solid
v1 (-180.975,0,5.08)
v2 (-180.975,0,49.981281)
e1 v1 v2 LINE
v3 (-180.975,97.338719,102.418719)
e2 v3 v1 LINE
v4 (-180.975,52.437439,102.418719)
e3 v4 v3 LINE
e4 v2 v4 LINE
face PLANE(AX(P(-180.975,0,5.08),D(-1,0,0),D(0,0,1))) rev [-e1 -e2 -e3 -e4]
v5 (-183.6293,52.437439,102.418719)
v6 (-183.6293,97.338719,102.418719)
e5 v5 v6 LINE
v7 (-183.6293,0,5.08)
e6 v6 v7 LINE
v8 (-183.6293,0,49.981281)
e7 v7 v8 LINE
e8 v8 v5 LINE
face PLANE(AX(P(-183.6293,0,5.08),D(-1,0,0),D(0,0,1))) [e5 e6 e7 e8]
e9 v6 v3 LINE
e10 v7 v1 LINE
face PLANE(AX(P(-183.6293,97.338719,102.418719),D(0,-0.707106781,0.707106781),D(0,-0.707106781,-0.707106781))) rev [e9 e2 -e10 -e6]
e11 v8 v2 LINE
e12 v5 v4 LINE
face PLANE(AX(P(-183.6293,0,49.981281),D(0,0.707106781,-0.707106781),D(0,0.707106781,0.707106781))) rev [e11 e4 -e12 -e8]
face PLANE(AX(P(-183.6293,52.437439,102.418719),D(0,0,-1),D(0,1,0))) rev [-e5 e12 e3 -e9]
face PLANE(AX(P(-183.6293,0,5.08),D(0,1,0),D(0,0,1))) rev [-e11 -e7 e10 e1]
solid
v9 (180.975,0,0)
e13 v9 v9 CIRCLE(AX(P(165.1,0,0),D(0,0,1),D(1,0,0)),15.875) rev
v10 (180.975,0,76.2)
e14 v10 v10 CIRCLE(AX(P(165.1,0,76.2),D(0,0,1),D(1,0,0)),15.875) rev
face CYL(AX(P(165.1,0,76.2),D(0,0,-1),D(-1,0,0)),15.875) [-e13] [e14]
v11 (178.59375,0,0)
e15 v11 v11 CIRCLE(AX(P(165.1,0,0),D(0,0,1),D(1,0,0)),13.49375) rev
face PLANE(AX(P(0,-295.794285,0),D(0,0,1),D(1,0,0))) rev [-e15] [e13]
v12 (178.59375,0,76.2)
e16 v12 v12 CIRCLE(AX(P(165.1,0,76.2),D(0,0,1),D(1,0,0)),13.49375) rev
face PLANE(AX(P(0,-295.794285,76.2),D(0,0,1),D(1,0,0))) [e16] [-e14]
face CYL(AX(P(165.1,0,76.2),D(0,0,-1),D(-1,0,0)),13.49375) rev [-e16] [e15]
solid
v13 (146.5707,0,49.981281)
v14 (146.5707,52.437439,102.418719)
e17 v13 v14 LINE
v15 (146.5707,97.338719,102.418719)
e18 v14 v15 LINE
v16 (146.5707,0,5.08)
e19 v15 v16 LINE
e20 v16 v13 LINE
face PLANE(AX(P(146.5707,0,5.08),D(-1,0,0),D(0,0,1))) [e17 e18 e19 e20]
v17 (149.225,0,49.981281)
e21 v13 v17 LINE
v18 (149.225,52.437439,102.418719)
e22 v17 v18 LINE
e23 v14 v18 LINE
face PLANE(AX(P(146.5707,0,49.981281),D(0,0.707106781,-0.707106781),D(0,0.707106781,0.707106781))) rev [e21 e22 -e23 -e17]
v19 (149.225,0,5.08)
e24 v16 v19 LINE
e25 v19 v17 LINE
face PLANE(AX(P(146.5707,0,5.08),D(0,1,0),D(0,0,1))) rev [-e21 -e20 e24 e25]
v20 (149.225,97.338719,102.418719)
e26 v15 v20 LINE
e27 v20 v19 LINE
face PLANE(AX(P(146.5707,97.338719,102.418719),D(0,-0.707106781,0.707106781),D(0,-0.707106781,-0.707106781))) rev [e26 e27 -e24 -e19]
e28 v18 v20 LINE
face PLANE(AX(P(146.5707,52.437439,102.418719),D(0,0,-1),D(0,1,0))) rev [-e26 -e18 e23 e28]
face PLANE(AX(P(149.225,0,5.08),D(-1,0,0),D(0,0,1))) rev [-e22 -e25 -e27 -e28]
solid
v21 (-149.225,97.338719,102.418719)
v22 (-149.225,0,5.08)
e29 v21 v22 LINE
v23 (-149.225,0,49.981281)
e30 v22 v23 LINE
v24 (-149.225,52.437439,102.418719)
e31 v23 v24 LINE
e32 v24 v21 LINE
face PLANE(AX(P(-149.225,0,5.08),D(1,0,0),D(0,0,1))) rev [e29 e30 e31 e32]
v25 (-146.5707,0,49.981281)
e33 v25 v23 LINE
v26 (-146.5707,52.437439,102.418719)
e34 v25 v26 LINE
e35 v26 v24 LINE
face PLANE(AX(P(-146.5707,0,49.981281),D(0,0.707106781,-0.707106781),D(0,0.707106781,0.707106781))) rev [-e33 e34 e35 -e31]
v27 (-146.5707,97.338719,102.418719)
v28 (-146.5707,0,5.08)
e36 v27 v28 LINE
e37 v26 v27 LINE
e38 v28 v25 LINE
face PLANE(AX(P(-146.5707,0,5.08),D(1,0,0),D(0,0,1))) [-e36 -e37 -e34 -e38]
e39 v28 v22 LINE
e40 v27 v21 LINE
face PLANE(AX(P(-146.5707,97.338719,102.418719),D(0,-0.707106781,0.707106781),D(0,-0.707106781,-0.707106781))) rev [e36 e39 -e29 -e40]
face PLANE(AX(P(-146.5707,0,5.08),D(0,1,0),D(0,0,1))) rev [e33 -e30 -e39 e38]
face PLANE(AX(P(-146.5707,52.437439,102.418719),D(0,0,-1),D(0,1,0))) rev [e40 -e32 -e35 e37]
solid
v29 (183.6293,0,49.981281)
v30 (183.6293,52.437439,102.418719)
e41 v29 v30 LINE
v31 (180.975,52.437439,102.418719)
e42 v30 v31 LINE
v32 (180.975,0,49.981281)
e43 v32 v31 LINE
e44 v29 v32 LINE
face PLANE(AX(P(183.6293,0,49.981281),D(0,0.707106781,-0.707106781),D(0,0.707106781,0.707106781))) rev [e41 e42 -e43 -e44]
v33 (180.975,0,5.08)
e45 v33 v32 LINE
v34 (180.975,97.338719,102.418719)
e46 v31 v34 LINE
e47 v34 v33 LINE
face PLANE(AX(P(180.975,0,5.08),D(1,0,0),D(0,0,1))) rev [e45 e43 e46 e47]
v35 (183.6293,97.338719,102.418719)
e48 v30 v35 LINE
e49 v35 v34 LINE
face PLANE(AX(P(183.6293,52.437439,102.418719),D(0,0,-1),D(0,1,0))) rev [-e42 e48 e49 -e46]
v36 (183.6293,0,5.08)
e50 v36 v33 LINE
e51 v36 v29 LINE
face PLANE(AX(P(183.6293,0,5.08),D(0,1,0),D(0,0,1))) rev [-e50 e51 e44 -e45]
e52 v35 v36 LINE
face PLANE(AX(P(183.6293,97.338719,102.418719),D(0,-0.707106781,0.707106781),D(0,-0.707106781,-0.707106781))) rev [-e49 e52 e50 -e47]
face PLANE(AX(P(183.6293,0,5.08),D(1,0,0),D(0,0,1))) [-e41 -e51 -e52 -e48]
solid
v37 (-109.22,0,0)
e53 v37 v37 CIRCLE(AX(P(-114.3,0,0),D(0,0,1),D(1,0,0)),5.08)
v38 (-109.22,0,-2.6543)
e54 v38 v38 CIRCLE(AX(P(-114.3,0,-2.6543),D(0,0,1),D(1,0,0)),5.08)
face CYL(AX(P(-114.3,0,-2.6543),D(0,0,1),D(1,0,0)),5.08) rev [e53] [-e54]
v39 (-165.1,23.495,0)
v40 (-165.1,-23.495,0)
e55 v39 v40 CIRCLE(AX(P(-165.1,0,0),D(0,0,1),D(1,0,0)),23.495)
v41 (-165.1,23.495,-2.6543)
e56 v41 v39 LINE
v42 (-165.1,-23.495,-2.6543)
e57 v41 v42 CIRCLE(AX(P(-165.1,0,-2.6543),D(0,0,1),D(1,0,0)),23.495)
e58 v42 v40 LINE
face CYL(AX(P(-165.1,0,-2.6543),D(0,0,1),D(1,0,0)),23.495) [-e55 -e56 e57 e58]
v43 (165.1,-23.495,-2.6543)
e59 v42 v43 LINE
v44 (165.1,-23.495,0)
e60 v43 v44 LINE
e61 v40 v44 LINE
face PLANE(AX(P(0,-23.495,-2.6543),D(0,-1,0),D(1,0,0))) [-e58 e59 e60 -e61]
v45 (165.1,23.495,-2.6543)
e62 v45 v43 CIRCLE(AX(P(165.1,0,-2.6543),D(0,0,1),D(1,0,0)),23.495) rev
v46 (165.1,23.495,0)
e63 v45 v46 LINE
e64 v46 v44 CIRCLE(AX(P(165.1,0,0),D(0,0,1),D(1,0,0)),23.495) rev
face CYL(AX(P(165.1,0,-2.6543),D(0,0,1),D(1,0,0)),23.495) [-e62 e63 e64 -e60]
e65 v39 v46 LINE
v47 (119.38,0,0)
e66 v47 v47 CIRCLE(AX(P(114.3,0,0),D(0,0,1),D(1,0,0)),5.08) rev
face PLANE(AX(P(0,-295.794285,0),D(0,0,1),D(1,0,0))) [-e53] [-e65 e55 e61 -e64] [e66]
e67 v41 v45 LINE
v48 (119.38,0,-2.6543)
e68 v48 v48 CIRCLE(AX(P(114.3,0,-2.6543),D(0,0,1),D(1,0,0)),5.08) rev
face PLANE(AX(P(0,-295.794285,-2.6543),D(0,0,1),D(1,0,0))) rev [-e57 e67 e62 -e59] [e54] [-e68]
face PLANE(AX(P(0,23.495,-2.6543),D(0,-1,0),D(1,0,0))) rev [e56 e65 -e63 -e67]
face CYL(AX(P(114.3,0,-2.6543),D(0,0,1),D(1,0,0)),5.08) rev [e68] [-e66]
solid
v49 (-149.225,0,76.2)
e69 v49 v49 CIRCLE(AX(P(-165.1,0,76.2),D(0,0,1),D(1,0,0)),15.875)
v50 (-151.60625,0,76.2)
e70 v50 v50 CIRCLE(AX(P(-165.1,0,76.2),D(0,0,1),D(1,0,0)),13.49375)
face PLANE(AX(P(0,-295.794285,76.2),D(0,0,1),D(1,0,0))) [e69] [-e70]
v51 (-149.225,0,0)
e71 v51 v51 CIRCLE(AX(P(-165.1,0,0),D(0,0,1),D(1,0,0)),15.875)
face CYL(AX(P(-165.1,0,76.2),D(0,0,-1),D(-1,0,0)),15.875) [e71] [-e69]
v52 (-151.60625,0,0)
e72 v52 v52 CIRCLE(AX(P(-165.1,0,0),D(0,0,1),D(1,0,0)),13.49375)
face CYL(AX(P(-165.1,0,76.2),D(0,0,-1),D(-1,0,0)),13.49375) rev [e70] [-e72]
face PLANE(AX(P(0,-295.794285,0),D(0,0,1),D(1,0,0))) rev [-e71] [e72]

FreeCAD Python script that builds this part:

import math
import FreeCAD as App
import Part
import Sketcher
Q = App.Units.Quantity

doc = App.newDocument("Part")
params = doc.addObject("Spreadsheet::Sheet", "Params")
for row, (alias, value) in enumerate([
    ("sketch1_diameter", "1.25 in"),
    ("sketch1_diameter2", "1.0625 in"),
    ("pad1_length", "3 in"),
    ("sketch2_diameter", "1.25 in"),
    ("sketch2_diameter2", "1.0625 in"),
    ("pad2_length", "3 in"),
    ("sketch3_width", "13 in"),
    ("sketch3_radius", "0.925 in"),
    ("pad3_length", "0.1045 in"),
    ("sketch4_diameter", "0.4 in"),
    ("pocket1_length", "0.1045 in"),
    ("pad4_length", "0.1045 in"),
], start=1):
    params.set(f"A{row}", alias)
    params.set(f"B{row}", "=" + value)
    params.setAlias(f"B{row}", alias)

body = doc.addObject("PartDesign::Body", "Body")

sketch1 = body.newObject("Sketcher::SketchObject", "Sketch")
sketch1.AttachmentSupport = (doc.getObject("XY_Plane"), [""])
sketch1.MapMode = "FlatFace"
sketch1.addGeometry([
    Part.Circle(App.Vector(-165, 0, 0), App.Vector(0, 0, 1), 16),
    Part.Circle(App.Vector(-165, 0, 0), App.Vector(0, 0, 1), 13),
], False)
sketch1.addConstraint([
    Sketcher.Constraint("Coincident", 1, 3, 0, 3),
    Sketcher.Constraint("PointOnObject", 0, 3, -1),
    Sketcher.Constraint("Diameter", 0, Q("1.25 in")),
    Sketcher.Constraint("Diameter", 1, Q("1.0625 in")),
    Sketcher.Constraint("DistanceX", 0, 3, -1, 1, Q("6.5 in")),
])
sketch1.setExpression("Constraints[2]", "Params.sketch1_diameter")
sketch1.setExpression("Constraints[3]", "Params.sketch1_diameter2")
pad1 = body.newObject("PartDesign::Pad", "Pad")
pad1.Profile = sketch1
pad1.setExpression("Length", "Params.pad1_length")
body2 = doc.addObject("PartDesign::Body", "Body001")

sketch2 = body2.newObject("Sketcher::SketchObject", "Sketch001")
sketch2.AttachmentSupport = (doc.getObject("XY_Plane001"), [""])
sketch2.MapMode = "FlatFace"
sketch2.addGeometry([
    Part.Circle(App.Vector(165, 0, 0), App.Vector(0, 0, 1), 16),
    Part.Circle(App.Vector(165, 0, 0), App.Vector(0, 0, 1), 13),
], False)
sketch2.addConstraint([
    Sketcher.Constraint("Coincident", 1, 3, 0, 3),
    Sketcher.Constraint("PointOnObject", 0, 3, -1),
    Sketcher.Constraint("Diameter", 0, Q("1.25 in")),
    Sketcher.Constraint("Diameter", 1, Q("1.0625 in")),
    Sketcher.Constraint("DistanceX", -1, 1, 0, 3, Q("6.5 in")),
])
sketch2.setExpression("Constraints[2]", "Params.sketch2_diameter")
sketch2.setExpression("Constraints[3]", "Params.sketch2_diameter2")
pad2 = body2.newObject("PartDesign::Pad", "Pad001")
pad2.Profile = sketch2
pad2.setExpression("Length", "Params.pad2_length")
body3 = doc.addObject("PartDesign::Body", "Body002")

sketch3 = body3.newObject("Sketcher::SketchObject", "Sketch002")
sketch3.AttachmentSupport = (doc.getObject("XY_Plane002"), [""])
sketch3.MapMode = "FlatFace"
sketch3.addGeometry([
    Part.ArcOfCircle(Part.Circle(App.Vector(165, 0, 0), App.Vector(0, 0, 1), 23), math.radians(-90), math.radians(90)),
    Part.LineSegment(App.Vector(165, 23, 0), App.Vector(-165, 23, 0)),
    Part.ArcOfCircle(Part.Circle(App.Vector(-165, 0, 0), App.Vector(0, 0, 1), 23), math.radians(90), math.radians(270)),
    Part.LineSegment(App.Vector(-165, -23, 0), App.Vector(165, -23, 0)),
], False)
sketch3.addConstraint([
    Sketcher.Constraint("Tangent", 0, 2, 1, 1),
    Sketcher.Constraint("Tangent", 1, 2, 2, 1),
    Sketcher.Constraint("Tangent", 2, 2, 3, 1),
    Sketcher.Constraint("Tangent", 3, 2, 0, 1),
    Sketcher.Constraint("Horizontal", 1),
    Sketcher.Constraint("Horizontal", 3),
    Sketcher.Constraint("Symmetric", 0, 3, 2, 3, -1, 1),
    Sketcher.Constraint("DistanceX", 1, 2, 1, 1, Q("13 in")),
    Sketcher.Constraint("Radius", 0, Q("0.925 in")),
])
sketch3.setExpression("Constraints[7]", "Params.sketch3_width")
sketch3.setExpression("Constraints[8]", "Params.sketch3_radius")
pad3 = body3.newObject("PartDesign::Pad", "Pad002")
pad3.Profile = sketch3
pad3.setExpression("Length", "Params.pad3_length")
pad3.Reversed = True

sketch4 = body3.newObject("Sketcher::SketchObject", "Sketch003")
sketch4.AttachmentSupport = (doc.getObject("XY_Plane002"), [""])
sketch4.MapMode = "FlatFace"
sketch4.addGeometry([
    Part.Circle(App.Vector(114, 0, 0), App.Vector(0, 0, 1), 5),
    Part.Circle(App.Vector(-114, 0, 0), App.Vector(0, 0, 1), 5),
], False)
sketch4.addConstraint([
    Sketcher.Constraint("Equal", 0, 1),
    Sketcher.Constraint("Symmetric", 0, 3, 1, 3, -1, 1),
    Sketcher.Constraint("PointOnObject", 0, 3, -1),
    Sketcher.Constraint("Diameter", 0, Q("0.4 in")),
    Sketcher.Constraint("DistanceX", 1, 3, 0, 3, Q("9 in")),
])
sketch4.setExpression("Constraints[3]", "Params.sketch4_diameter")
pocket1 = body3.newObject("PartDesign::Pocket", "Pocket")
pocket1.Profile = sketch4
pocket1.setExpression("Length", "Params.pocket1_length")
body4 = doc.addObject("PartDesign::Body", "Body003")

sketch5 = body4.newObject("Sketcher::SketchObject", "Sketch004")
sketch5.AttachmentSupport = (doc.getObject("YZ_Plane003"), [""])
sketch5.MapMode = "FlatFace"
sketch5.AttachmentOffset = App.Placement(App.Vector(0, 0, -7.125 * 25.4), App.Rotation())
sketch5.addGeometry([
    Part.LineSegment(App.Vector(0, 5, 0), App.Vector(0, 50, 0)),
    Part.LineSegment(App.Vector(0, 50, 0), App.Vector(52, 102, 0)),
    Part.LineSegment(App.Vector(52, 102, 0), App.Vector(97, 102, 0)),
    Part.LineSegment(App.Vector(97, 102, 0), App.Vector(0, 5, 0)),
], False)
sketch5.addConstraint([
    Sketcher.Constraint("Coincident", 0, 2, 1, 1),
    Sketcher.Constraint("Coincident", 1, 2, 2, 1),
    Sketcher.Constraint("Coincident", 2, 2, 3, 1),
    Sketcher.Constraint("Coincident", 3, 2, 0, 1),
    Sketcher.Constraint("Vertical", 0),
    Sketcher.Constraint("Horizontal", 2),
    Sketcher.Constraint("PointOnObject", 0, 2, -2),
    Sketcher.Constraint("Parallel", 1, 3),
    Sketcher.Constraint("Equal", 2, 0),
    Sketcher.Constraint("DistanceY", -1, 1, 3, 2, Q("0.2 in")),
    Sketcher.Constraint("DistanceX", 2, 1, 2, 2, Q("44.901281 mm")),
    Sketcher.Constraint("DistanceX", -1, 1, 1, 2, Q("52.437439 mm")),
])
pad4 = body4.newObject("PartDesign::Pad", "Pad003")
pad4.Profile = sketch5
pad4.setExpression("Length", "Params.pad4_length")
pad4.Reversed = True
body5 = doc.addObject("PartDesign::Body", "Body004")
doc.recompute()

mirroring = doc.addObject("Part::Mirroring", "Mirroring")
mirroring.Source = body4
mirroring.Base = App.Vector(-165.1, 0, 0)
mirroring.Normal = App.Vector(-1, 0, 0)
body5.BaseFeature = mirroring
doc.recompute()
body6 = doc.addObject("PartDesign::Body", "Body005")
doc.recompute()

mirroring2 = doc.addObject("Part::Mirroring", "Mirroring001")
mirroring2.Source = body5
mirroring2.Base = App.Vector(0, 0, 0)
mirroring2.Normal = App.Vector(1, 0, 0)
body6.BaseFeature = mirroring2
doc.recompute()
body7 = doc.addObject("PartDesign::Body", "Body006")
doc.recompute()

mirroring3 = doc.addObject("Part::Mirroring", "Mirroring002")
mirroring3.Source = body4
mirroring3.Base = App.Vector(0, 0, 0)
mirroring3.Normal = App.Vector(1, 0, 0)
body7.BaseFeature = mirroring3
doc.recompute()
mirroring.Visibility = False
mirroring2.Visibility = False
mirroring3.Visibility = False

doc.recompute()
